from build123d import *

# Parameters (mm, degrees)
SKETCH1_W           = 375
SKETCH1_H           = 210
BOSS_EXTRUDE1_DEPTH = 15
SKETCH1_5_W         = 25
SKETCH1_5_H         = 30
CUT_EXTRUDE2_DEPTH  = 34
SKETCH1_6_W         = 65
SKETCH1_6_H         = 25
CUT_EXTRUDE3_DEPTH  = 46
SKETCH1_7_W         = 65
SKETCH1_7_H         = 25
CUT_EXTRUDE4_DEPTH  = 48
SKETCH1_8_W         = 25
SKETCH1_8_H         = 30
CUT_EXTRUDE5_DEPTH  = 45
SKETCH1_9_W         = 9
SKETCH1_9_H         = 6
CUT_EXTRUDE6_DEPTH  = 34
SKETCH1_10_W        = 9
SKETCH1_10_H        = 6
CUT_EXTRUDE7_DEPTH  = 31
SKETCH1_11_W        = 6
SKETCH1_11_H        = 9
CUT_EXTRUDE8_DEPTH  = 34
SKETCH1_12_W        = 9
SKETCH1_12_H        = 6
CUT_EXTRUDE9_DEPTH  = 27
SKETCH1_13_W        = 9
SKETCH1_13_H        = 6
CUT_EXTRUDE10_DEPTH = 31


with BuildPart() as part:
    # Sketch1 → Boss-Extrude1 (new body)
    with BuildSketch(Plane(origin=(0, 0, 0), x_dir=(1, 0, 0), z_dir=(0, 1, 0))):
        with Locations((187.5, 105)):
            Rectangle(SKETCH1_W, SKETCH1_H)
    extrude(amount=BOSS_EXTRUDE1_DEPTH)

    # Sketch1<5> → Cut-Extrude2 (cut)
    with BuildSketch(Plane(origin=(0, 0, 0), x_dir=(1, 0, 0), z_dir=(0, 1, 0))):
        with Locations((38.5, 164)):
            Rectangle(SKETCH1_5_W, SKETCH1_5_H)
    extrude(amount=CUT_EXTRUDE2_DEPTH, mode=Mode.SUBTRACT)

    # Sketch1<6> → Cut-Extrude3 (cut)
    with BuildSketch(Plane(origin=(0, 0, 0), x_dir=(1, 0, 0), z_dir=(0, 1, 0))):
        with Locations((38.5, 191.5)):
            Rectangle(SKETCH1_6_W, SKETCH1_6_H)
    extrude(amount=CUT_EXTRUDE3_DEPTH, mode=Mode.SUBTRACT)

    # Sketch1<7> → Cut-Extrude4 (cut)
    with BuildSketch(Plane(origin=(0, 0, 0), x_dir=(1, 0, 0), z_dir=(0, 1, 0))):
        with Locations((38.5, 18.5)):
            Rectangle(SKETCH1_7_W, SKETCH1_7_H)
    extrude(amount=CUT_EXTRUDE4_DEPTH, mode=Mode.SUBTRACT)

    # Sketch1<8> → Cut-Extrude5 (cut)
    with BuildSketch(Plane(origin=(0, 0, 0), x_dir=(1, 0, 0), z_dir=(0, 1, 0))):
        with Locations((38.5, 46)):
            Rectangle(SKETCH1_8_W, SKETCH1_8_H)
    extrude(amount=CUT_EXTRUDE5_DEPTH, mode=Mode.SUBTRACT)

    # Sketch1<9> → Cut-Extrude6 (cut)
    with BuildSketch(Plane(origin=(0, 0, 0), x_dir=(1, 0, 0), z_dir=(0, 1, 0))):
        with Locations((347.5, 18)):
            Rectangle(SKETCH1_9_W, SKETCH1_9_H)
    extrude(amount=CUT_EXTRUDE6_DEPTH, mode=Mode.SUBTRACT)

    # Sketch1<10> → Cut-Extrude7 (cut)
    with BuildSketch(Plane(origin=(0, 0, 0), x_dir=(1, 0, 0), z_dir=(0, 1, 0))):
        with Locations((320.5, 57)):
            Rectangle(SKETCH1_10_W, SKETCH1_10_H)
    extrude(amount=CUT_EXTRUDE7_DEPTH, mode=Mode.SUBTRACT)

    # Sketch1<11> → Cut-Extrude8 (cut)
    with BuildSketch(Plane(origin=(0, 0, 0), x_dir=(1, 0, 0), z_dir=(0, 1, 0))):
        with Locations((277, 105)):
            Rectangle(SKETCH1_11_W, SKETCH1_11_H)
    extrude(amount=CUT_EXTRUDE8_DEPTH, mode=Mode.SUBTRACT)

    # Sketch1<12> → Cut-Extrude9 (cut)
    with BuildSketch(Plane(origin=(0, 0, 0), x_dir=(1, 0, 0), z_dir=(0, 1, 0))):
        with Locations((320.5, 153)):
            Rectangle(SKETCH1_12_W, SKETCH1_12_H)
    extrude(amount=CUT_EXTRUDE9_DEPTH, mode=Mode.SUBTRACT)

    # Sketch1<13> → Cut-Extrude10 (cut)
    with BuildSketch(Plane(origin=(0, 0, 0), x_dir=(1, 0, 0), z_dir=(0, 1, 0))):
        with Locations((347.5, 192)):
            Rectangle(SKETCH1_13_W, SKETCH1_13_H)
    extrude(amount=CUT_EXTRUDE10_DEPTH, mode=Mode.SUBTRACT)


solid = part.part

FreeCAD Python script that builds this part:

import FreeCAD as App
import Part
import Sketcher

doc = App.newDocument("Part")
body = doc.addObject("PartDesign::Body", "Body")

sketch1 = doc.addObject("Sketcher::SketchObject", "Sketch")
body.addObject(sketch1)
sketch1.AttachmentSupport = (doc.XZ_Plane, [""])
sketch1.MapMode = "FlatFace"
sketch1.addGeometry(Part.LineSegment(App.Vector(0, -210, 0), App.Vector(0, 0, 0)), False)
sketch1.addGeometry(Part.LineSegment(App.Vector(0, 0, 0), App.Vector(375, 0, 0)), False)
sketch1.addGeometry(Part.LineSegment(App.Vector(375, 0, 0), App.Vector(375, -210, 0)), False)
sketch1.addGeometry(Part.LineSegment(App.Vector(375, -210, 0), App.Vector(0, -210, 0)), False)
sketch1.addConstraint(Sketcher.Constraint("Coincident", 0, 2, 1, 1))
sketch1.addConstraint(Sketcher.Constraint("Coincident", 1, 2, 2, 1))
sketch1.addConstraint(Sketcher.Constraint("Coincident", 2, 2, 3, 1))
sketch1.addConstraint(Sketcher.Constraint("Coincident", 3, 2, 0, 1))
sketch1.addConstraint(Sketcher.Constraint("Vertical", 0))
sketch1.addConstraint(Sketcher.Constraint("Horizontal", 1))
sketch1.addConstraint(Sketcher.Constraint("Vertical", 2))
sketch1.addConstraint(Sketcher.Constraint("Horizontal", 3))
sketch1.addConstraint(Sketcher.Constraint("Coincident", 0, 2, -1, 1))
sketch1.addConstraint(Sketcher.Constraint("DistanceX", 1, 1, 1, 2, 375.0))
sketch1.addConstraint(Sketcher.Constraint("DistanceY", 0, 1, 0, 2, 210.0))
pad1 = doc.addObject("PartDesign::Pad", "Pad")
body.addObject(pad1)
pad1.Profile = sketch1
pad1.Length = 15
pad1.Reversed = True

sketch2 = doc.addObject("Sketcher::SketchObject", "Sketch001")
body.addObject(sketch2)
sketch2.AttachmentSupport = (doc.XZ_Plane, [""])
sketch2.MapMode = "FlatFace"
sketch2.addGeometry(Part.LineSegment(App.Vector(26, -179, 0), App.Vector(26, -149, 0)), False)
sketch2.addGeometry(Part.LineSegment(App.Vector(26, -149, 0), App.Vector(51, -149, 0)), False)
sketch2.addGeometry(Part.LineSegment(App.Vector(51, -149, 0), App.Vector(51, -179, 0)), False)
sketch2.addGeometry(Part.LineSegment(App.Vector(51, -179, 0), App.Vector(26, -179, 0)), False)
sketch2.addConstraint(Sketcher.Constraint("Coincident", 0, 2, 1, 1))
sketch2.addConstraint(Sketcher.Constraint("Coincident", 1, 2, 2, 1))
sketch2.addConstraint(Sketcher.Constraint("Coincident", 2, 2, 3, 1))
sketch2.addConstraint(Sketcher.Constraint("Coincident", 3, 2, 0, 1))
sketch2.addConstraint(Sketcher.Constraint("Vertical", 0))
sketch2.addConstraint(Sketcher.Constraint("Horizontal", 1))
sketch2.addConstraint(Sketcher.Constraint("Vertical", 2))
sketch2.addConstraint(Sketcher.Constraint("Horizontal", 3))
sketch2.addConstraint(Sketcher.Constraint("DistanceX", 1, 1, 1, 2, 25.0))
sketch2.addConstraint(Sketcher.Constraint("DistanceY", 0, 1, 0, 2, 30.0))
sketch2.addConstraint(Sketcher.Constraint("DistanceX", -1, 1, 0, 2, 26.0))
sketch2.addConstraint(Sketcher.Constraint("DistanceY", 0, 2, -1, 1, 149.0))
pocket1 = doc.addObject("PartDesign::Pocket", "Pocket")
body.addObject(pocket1)
pocket1.Profile = sketch2
pocket1.Length = 34

sketch3 = doc.addObject("Sketcher::SketchObject", "Sketch002")
body.addObject(sketch3)
sketch3.AttachmentSupport = (doc.XZ_Plane, [""])
sketch3.MapMode = "FlatFace"
sketch3.addGeometry(Part.LineSegment(App.Vector(6, -204, 0), App.Vector(6, -179, 0)), False)
sketch3.addGeometry(Part.LineSegment(App.Vector(6, -179, 0), App.Vector(71, -179, 0)), False)
sketch3.addGeometry(Part.LineSegment(App.Vector(71, -179, 0), App.Vector(71, -204, 0)), False)
sketch3.addGeometry(Part.LineSegment(App.Vector(71, -204, 0), App.Vector(6, -204, 0)), False)
sketch3.addConstraint(Sketcher.Constraint("Coincident", 0, 2, 1, 1))
sketch3.addConstraint(Sketcher.Constraint("Coincident", 1, 2, 2, 1))
sketch3.addConstraint(Sketcher.Constraint("Coincident", 2, 2, 3, 1))
sketch3.addConstraint(Sketcher.Constraint("Coincident", 3, 2, 0, 1))
sketch3.addConstraint(Sketcher.Constraint("Vertical", 0))
sketch3.addConstraint(Sketcher.Constraint("Horizontal", 1))
sketch3.addConstraint(Sketcher.Constraint("Vertical", 2))
sketch3.addConstraint(Sketcher.Constraint("Horizontal", 3))
sketch3.addConstraint(Sketcher.Constraint("DistanceX", 1, 1, 1, 2, 65.0))
sketch3.addConstraint(Sketcher.Constraint("DistanceY", 0, 1, 0, 2, 25.0))
sketch3.addConstraint(Sketcher.Constraint("DistanceX", -1, 1, 0, 2, 6.0))
sketch3.addConstraint(Sketcher.Constraint("DistanceY", 0, 2, -1, 1, 179.0))
pocket2 = doc.addObject("PartDesign::Pocket", "Pocket001")
body.addObject(pocket2)
pocket2.Profile = sketch3
pocket2.Length = 46

sketch4 = doc.addObject("Sketcher::SketchObject", "Sketch003")
body.addObject(sketch4)
sketch4.AttachmentSupport = (doc.XZ_Plane, [""])
sketch4.MapMode = "FlatFace"
sketch4.addGeometry(Part.LineSegment(App.Vector(6, -31, 0), App.Vector(6, -6, 0)), False)
sketch4.addGeometry(Part.LineSegment(App.Vector(6, -6, 0), App.Vector(71, -6, 0)), False)
sketch4.addGeometry(Part.LineSegment(App.Vector(71, -6, 0), App.Vector(71, -31, 0)), False)
sketch4.addGeometry(Part.LineSegment(App.Vector(71, -31, 0), App.Vector(6, -31, 0)), False)
sketch4.addConstraint(Sketcher.Constraint("Coincident", 0, 2, 1, 1))
sketch4.addConstraint(Sketcher.Constraint("Coincident", 1, 2, 2, 1))
sketch4.addConstraint(Sketcher.Constraint("Coincident", 2, 2, 3, 1))
sketch4.addConstraint(Sketcher.Constraint("Coincident", 3, 2, 0, 1))
sketch4.addConstraint(Sketcher.Constraint("Vertical", 0))
sketch4.addConstraint(Sketcher.Constraint("Horizontal", 1))
sketch4.addConstraint(Sketcher.Constraint("Vertical", 2))
sketch4.addConstraint(Sketcher.Constraint("Horizontal", 3))
sketch4.addConstraint(Sketcher.Constraint("DistanceX", 1, 1, 1, 2, 65.0))
sketch4.addConstraint(Sketcher.Constraint("DistanceY", 0, 1, 0, 2, 25.0))
sketch4.addConstraint(Sketcher.Constraint("DistanceX", -1, 1, 0, 2, 6.0))
sketch4.addConstraint(Sketcher.Constraint("DistanceY", 0, 2, -1, 1, 6.0))
pocket3 = doc.addObject("PartDesign::Pocket", "Pocket002")
body.addObject(pocket3)
pocket3.Profile = sketch4
pocket3.Length = 48

sketch5 = doc.addObject("Sketcher::SketchObject", "Sketch004")
body.addObject(sketch5)
sketch5.AttachmentSupport = (doc.XZ_Plane, [""])
sketch5.MapMode = "FlatFace"
sketch5.addGeometry(Part.LineSegment(App.Vector(26, -61, 0), App.Vector(26, -31, 0)), False)
sketch5.addGeometry(Part.LineSegment(App.Vector(26, -31, 0), App.Vector(51, -31, 0)), False)
sketch5.addGeometry(Part.LineSegment(App.Vector(51, -31, 0), App.Vector(51, -61, 0)), False)
sketch5.addGeometry(Part.LineSegment(App.Vector(51, -61, 0), App.Vector(26, -61, 0)), False)
sketch5.addConstraint(Sketcher.Constraint("Coincident", 0, 2, 1, 1))
sketch5.addConstraint(Sketcher.Constraint("Coincident", 1, 2, 2, 1))
sketch5.addConstraint(Sketcher.Constraint("Coincident", 2, 2, 3, 1))
sketch5.addConstraint(Sketcher.Constraint("Coincident", 3, 2, 0, 1))
sketch5.addConstraint(Sketcher.Constraint("Vertical", 0))
sketch5.addConstraint(Sketcher.Constraint("Horizontal", 1))
sketch5.addConstraint(Sketcher.Constraint("Vertical", 2))
sketch5.addConstraint(Sketcher.Constraint("Horizontal", 3))
sketch5.addConstraint(Sketcher.Constraint("DistanceX", 1, 1, 1, 2, 25.0))
sketch5.addConstraint(Sketcher.Constraint("DistanceY", 0, 1, 0, 2, 30.0))
sketch5.addConstraint(Sketcher.Constraint("DistanceX", -1, 1, 0, 2, 26.0))
sketch5.addConstraint(Sketcher.Constraint("DistanceY", 0, 2, -1, 1, 31.0))
pocket4 = doc.addObject("PartDesign::Pocket", "Pocket003")
body.addObject(pocket4)
pocket4.Profile = sketch5
pocket4.Length = 45

sketch6 = doc.addObject("Sketcher::SketchObject", "Sketch005")
body.addObject(sketch6)
sketch6.AttachmentSupport = (doc.XZ_Plane, [""])
sketch6.MapMode = "FlatFace"
sketch6.addGeometry(Part.LineSegment(App.Vector(343, -21, 0), App.Vector(343, -15, 0)), False)
sketch6.addGeometry(Part.LineSegment(App.Vector(343, -15, 0), App.Vector(352, -15, 0)), False)
sketch6.addGeometry(Part.LineSegment(App.Vector(352, -15, 0), App.Vector(352, -21, 0)), False)
sketch6.addGeometry(Part.LineSegment(App.Vector(352, -21, 0), App.Vector(343, -21, 0)), False)
sketch6.addConstraint(Sketcher.Constraint("Coincident", 0, 2, 1, 1))
sketch6.addConstraint(Sketcher.Constraint("Coincident", 1, 2, 2, 1))
sketch6.addConstraint(Sketcher.Constraint("Coincident", 2, 2, 3, 1))
sketch6.addConstraint(Sketcher.Constraint("Coincident", 3, 2, 0, 1))
sketch6.addConstraint(Sketcher.Constraint("Vertical", 0))
sketch6.addConstraint(Sketcher.Constraint("Horizontal", 1))
sketch6.addConstraint(Sketcher.Constraint("Vertical", 2))
sketch6.addConstraint(Sketcher.Constraint("Horizontal", 3))
sketch6.addConstraint(Sketcher.Constraint("DistanceX", 1, 1, 1, 2, 9.0))
sketch6.addConstraint(Sketcher.Constraint("DistanceY", 0, 1, 0, 2, 6.0))
sketch6.addConstraint(Sketcher.Constraint("DistanceX", -1, 1, 0, 2, 343.0))
sketch6.addConstraint(Sketcher.Constraint("DistanceY", 0, 2, -1, 1, 15.0))
pocket5 = doc.addObject("PartDesign::Pocket", "Pocket004")
body.addObject(pocket5)
pocket5.Profile = sketch6
pocket5.Length = 34

sketch7 = doc.addObject("Sketcher::SketchObject", "Sketch006")
body.addObject(sketch7)
sketch7.AttachmentSupport = (doc.XZ_Plane, [""])
sketch7.MapMode = "FlatFace"
sketch7.addGeometry(Part.LineSegment(App.Vector(316, -60, 0), App.Vector(316, -54, 0)), False)
sketch7.addGeometry(Part.LineSegment(App.Vector(316, -54, 0), App.Vector(325, -54, 0)), False)
sketch7.addGeometry(Part.LineSegment(App.Vector(325, -54, 0), App.Vector(325, -60, 0)), False)
sketch7.addGeometry(Part.LineSegment(App.Vector(325, -60, 0), App.Vector(316, -60, 0)), False)
sketch7.addConstraint(Sketcher.Constraint("Coincident", 0, 2, 1, 1))
sketch7.addConstraint(Sketcher.Constraint("Coincident", 1, 2, 2, 1))
sketch7.addConstraint(Sketcher.Constraint("Coincident", 2, 2, 3, 1))
sketch7.addConstraint(Sketcher.Constraint("Coincident", 3, 2, 0, 1))
sketch7.addConstraint(Sketcher.Constraint("Vertical", 0))
sketch7.addConstraint(Sketcher.Constraint("Horizontal", 1))
sketch7.addConstraint(Sketcher.Constraint("Vertical", 2))
sketch7.addConstraint(Sketcher.Constraint("Horizontal", 3))
sketch7.addConstraint(Sketcher.Constraint("DistanceX", 1, 1, 1, 2, 9.0))
sketch7.addConstraint(Sketcher.Constraint("DistanceY", 0, 1, 0, 2, 6.0))
sketch7.addConstraint(Sketcher.Constraint("DistanceX", -1, 1, 0, 2, 316.0))
sketch7.addConstraint(Sketcher.Constraint("DistanceY", 0, 2, -1, 1, 54.0))
pocket6 = doc.addObject("PartDesign::Pocket", "Pocket005")
body.addObject(pocket6)
pocket6.Profile = sketch7
pocket6.Length = 31

sketch8 = doc.addObject("Sketcher::SketchObject", "Sketch007")
body.addObject(sketch8)
sketch8.AttachmentSupport = (doc.XZ_Plane, [""])
sketch8.MapMode = "FlatFace"
sketch8.addGeometry(Part.LineSegment(App.Vector(274, -110, 0), App.Vector(274, -100, 0)), False)
sketch8.addGeometry(Part.LineSegment(App.Vector(274, -100, 0), App.Vector(280, -100, 0)), False)
sketch8.addGeometry(Part.LineSegment(App.Vector(280, -100, 0), App.Vector(280, -110, 0)), False)
sketch8.addGeometry(Part.LineSegment(App.Vector(280, -110, 0), App.Vector(274, -110, 0)), False)
sketch8.addConstraint(Sketcher.Constraint("Coincident", 0, 2, 1, 1))
sketch8.addConstraint(Sketcher.Constraint("Coincident", 1, 2, 2, 1))
sketch8.addConstraint(Sketcher.Constraint("Coincident", 2, 2, 3, 1))
sketch8.addConstraint(Sketcher.Constraint("Coincident", 3, 2, 0, 1))
sketch8.addConstraint(Sketcher.Constraint("Vertical", 0))
sketch8.addConstraint(Sketcher.Constraint("Horizontal", 1))
sketch8.addConstraint(Sketcher.Constraint("Vertical", 2))
sketch8.addConstraint(Sketcher.Constraint("Horizontal", 3))
sketch8.addConstraint(Sketcher.Constraint("DistanceX", 1, 1, 1, 2, 6.0))
sketch8.addConstraint(Sketcher.Constraint("DistanceY", 0, 1, 0, 2, 9.0))
sketch8.addConstraint(Sketcher.Constraint("DistanceX", -1, 1, 0, 2, 274.0))
sketch8.addConstraint(Sketcher.Constraint("DistanceY", 0, 2, -1, 1, 100.5))
pocket7 = doc.addObject("PartDesign::Pocket", "Pocket006")
body.addObject(pocket7)
pocket7.Profile = sketch8
pocket7.Length = 34

sketch9 = doc.addObject("Sketcher::SketchObject", "Sketch008")
body.addObject(sketch9)
sketch9.AttachmentSupport = (doc.XZ_Plane, [""])
sketch9.MapMode = "FlatFace"
sketch9.addGeometry(Part.LineSegment(App.Vector(316, -156, 0), App.Vector(316, -150, 0)), False)
sketch9.addGeometry(Part.LineSegment(App.Vector(316, -150, 0), App.Vector(325, -150, 0)), False)
sketch9.addGeometry(Part.LineSegment(App.Vector(325, -150, 0), App.Vector(325, -156, 0)), False)
sketch9.addGeometry(Part.LineSegment(App.Vector(325, -156, 0), App.Vector(316, -156, 0)), False)
sketch9.addConstraint(Sketcher.Constraint("Coincident", 0, 2, 1, 1))
sketch9.addConstraint(Sketcher.Constraint("Coincident", 1, 2, 2, 1))
sketch9.addConstraint(Sketcher.Constraint("Coincident", 2, 2, 3, 1))
sketch9.addConstraint(Sketcher.Constraint("Coincident", 3, 2, 0, 1))
sketch9.addConstraint(Sketcher.Constraint("Vertical", 0))
sketch9.addConstraint(Sketcher.Constraint("Horizontal", 1))
sketch9.addConstraint(Sketcher.Constraint("Vertical", 2))
sketch9.addConstraint(Sketcher.Constraint("Horizontal", 3))
sketch9.addConstraint(Sketcher.Constraint("DistanceX", 1, 1, 1, 2, 9.0))
sketch9.addConstraint(Sketcher.Constraint("DistanceY", 0, 1, 0, 2, 6.0))
sketch9.addConstraint(Sketcher.Constraint("DistanceX", -1, 1, 0, 2, 316.0))
sketch9.addConstraint(Sketcher.Constraint("DistanceY", 0, 2, -1, 1, 150.0))
pocket8 = doc.addObject("PartDesign::Pocket", "Pocket007")
body.addObject(pocket8)
pocket8.Profile = sketch9
pocket8.Length = 27

sketch10 = doc.addObject("Sketcher::SketchObject", "Sketch009")
body.addObject(sketch10)
sketch10.AttachmentSupport = (doc.XZ_Plane, [""])
sketch10.MapMode = "FlatFace"
sketch10.addGeometry(Part.LineSegment(App.Vector(343, -195, 0), App.Vector(343, -189, 0)), False)
sketch10.addGeometry(Part.LineSegment(App.Vector(343, -189, 0), App.Vector(352, -189, 0)), False)
sketch10.addGeometry(Part.LineSegment(App.Vector(352, -189, 0), App.Vector(352, -195, 0)), False)
sketch10.addGeometry(Part.LineSegment(App.Vector(352, -195, 0), App.Vector(343, -195, 0)), False)
sketch10.addConstraint(Sketcher.Constraint("Coincident", 0, 2, 1, 1))
sketch10.addConstraint(Sketcher.Constraint("Coincident", 1, 2, 2, 1))
sketch10.addConstraint(Sketcher.Constraint("Coincident", 2, 2, 3, 1))
sketch10.addConstraint(Sketcher.Constraint("Coincident", 3, 2, 0, 1))
sketch10.addConstraint(Sketcher.Constraint("Vertical", 0))
sketch10.addConstraint(Sketcher.Constraint("Horizontal", 1))
sketch10.addConstraint(Sketcher.Constraint("Vertical", 2))
sketch10.addConstraint(Sketcher.Constraint("Horizontal", 3))
sketch10.addConstraint(Sketcher.Constraint("DistanceX", 1, 1, 1, 2, 9.0))
sketch10.addConstraint(Sketcher.Constraint("DistanceY", 0, 1, 0, 2, 6.0))
sketch10.addConstraint(Sketcher.Constraint("DistanceX", -1, 1, 0, 2, 343.0))
sketch10.addConstraint(Sketcher.Constraint("DistanceY", 0, 2, -1, 1, 189.0))
pocket9 = doc.addObject("PartDesign::Pocket", "Pocket008")
body.addObject(pocket9)
pocket9.Profile = sketch10
pocket9.Length = 31

doc.recompute()
